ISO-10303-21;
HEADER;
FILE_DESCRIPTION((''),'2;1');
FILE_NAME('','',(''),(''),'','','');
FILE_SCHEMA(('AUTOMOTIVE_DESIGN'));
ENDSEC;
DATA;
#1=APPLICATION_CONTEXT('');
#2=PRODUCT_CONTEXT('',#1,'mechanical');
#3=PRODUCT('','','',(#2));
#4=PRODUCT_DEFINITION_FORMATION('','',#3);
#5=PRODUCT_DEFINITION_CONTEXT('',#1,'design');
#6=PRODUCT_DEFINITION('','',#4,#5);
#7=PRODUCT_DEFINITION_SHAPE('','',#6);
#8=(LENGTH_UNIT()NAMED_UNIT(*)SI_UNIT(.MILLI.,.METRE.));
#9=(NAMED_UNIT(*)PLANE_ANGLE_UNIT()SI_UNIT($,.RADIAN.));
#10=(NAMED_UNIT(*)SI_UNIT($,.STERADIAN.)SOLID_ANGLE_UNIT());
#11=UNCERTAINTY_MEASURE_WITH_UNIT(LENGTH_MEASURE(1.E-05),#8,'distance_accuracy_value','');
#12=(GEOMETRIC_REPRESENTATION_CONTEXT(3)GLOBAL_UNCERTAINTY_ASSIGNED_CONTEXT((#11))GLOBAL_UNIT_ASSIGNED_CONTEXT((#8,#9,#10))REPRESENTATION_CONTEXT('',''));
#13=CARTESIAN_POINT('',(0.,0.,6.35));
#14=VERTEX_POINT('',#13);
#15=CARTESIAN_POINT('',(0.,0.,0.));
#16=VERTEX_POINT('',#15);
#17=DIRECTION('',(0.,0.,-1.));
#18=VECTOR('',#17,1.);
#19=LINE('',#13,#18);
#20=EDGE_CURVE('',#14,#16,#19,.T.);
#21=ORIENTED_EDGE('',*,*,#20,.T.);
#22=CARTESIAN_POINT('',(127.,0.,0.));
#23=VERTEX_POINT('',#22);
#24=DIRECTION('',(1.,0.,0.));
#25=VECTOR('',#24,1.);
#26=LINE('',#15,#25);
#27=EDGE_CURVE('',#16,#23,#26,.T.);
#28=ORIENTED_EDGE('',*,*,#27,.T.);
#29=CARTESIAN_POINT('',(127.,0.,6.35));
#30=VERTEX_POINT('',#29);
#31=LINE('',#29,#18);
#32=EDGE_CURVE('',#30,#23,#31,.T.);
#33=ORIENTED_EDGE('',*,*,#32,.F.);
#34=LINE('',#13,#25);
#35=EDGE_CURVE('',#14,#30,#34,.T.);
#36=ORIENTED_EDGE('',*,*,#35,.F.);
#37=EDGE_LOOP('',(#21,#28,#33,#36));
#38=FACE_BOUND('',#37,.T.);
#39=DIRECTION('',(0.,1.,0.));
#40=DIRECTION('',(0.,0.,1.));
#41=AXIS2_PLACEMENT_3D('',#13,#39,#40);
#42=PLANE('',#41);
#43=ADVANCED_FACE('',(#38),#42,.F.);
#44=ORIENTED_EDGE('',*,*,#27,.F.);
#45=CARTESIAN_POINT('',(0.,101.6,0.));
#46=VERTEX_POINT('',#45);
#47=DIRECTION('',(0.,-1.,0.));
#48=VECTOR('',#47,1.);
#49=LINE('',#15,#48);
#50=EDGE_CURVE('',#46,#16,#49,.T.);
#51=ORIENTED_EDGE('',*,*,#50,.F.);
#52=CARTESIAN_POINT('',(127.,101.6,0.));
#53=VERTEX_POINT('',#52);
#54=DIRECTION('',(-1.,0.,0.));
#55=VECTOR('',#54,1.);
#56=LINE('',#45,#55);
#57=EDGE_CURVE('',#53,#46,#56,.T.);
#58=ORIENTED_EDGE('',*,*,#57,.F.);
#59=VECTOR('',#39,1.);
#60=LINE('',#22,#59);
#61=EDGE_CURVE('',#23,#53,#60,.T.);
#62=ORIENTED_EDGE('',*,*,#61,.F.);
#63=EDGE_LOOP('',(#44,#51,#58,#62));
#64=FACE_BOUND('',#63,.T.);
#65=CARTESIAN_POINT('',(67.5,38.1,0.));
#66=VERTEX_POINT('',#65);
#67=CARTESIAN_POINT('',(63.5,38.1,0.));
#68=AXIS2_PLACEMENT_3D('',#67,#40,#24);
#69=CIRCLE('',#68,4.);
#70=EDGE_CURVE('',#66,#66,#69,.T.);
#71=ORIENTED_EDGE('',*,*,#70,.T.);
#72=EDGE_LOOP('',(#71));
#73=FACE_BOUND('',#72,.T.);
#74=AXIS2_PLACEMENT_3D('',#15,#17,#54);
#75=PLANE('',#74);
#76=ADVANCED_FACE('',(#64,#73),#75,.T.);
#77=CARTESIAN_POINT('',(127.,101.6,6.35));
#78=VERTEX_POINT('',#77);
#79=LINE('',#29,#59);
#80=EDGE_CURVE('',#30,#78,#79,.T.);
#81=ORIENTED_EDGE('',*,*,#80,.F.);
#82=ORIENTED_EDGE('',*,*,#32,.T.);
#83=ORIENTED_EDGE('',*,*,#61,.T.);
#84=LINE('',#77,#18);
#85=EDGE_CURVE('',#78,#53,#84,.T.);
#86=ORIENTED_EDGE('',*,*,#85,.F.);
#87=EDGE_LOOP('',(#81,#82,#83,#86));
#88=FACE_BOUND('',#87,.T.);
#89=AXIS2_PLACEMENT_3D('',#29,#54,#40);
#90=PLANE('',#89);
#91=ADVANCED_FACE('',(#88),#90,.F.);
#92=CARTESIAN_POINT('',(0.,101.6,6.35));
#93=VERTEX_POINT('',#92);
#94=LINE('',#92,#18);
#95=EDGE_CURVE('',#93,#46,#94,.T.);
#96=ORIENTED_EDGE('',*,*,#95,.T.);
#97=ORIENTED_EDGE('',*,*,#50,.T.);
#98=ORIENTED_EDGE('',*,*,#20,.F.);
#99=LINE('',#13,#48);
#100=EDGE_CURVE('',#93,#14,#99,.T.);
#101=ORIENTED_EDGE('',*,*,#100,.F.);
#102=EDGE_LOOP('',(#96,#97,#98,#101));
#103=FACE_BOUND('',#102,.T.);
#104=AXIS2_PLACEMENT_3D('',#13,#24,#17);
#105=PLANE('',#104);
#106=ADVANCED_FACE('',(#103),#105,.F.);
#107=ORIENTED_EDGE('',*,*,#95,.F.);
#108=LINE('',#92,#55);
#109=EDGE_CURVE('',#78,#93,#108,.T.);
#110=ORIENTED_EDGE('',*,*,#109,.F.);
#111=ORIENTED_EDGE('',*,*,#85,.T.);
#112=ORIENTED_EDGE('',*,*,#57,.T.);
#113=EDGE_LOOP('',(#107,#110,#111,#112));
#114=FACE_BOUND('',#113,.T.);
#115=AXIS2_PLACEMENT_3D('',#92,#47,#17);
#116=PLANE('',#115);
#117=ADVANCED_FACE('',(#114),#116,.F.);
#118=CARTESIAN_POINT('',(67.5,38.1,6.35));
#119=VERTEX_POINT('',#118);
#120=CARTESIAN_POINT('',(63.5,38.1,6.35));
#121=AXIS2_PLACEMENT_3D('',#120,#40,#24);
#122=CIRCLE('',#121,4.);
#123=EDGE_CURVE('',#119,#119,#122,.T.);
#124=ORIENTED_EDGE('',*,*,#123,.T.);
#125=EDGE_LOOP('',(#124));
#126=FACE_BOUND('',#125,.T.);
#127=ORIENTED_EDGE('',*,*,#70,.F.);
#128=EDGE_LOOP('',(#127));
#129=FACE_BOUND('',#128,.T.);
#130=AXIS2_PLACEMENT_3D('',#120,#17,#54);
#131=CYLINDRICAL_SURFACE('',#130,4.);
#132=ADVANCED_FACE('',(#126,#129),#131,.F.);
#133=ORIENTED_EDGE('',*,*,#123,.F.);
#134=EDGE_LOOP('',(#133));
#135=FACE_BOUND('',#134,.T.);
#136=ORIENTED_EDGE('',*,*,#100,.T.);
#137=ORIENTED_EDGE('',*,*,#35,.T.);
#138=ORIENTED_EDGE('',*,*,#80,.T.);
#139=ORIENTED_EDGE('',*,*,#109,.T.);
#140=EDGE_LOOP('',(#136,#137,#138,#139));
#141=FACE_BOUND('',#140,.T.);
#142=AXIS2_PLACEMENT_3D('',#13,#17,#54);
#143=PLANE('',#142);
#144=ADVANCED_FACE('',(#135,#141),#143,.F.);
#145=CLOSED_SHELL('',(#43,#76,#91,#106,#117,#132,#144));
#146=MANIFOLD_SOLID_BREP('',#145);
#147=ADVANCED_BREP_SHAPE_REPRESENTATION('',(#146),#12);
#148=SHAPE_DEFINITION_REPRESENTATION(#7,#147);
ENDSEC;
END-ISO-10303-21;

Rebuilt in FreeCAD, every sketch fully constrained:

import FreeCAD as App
import Part
import Sketcher
Q = App.Units.Quantity


def add_polygon(sketch, points):
    """Adds a closed chain of lines whose ends are joined by coincident constraints."""
    first, n = sketch.GeometryCount, len(points)
    for a, b in zip(points, points[1:] + points[:1]):
        sketch.addGeometry(Part.LineSegment(App.Vector(*a, 0), App.Vector(*b, 0)), False)
    for i in range(n):
        sketch.addConstraint(Sketcher.Constraint("Coincident", first + i, 2, first + (i + 1) % n, 1))

doc = App.newDocument("Part")
body = doc.addObject("PartDesign::Body", "Body")

sketch1 = body.newObject("Sketcher::SketchObject", "Sketch")
sketch1.AttachmentSupport = (doc.getObject("XY_Plane"), [""])
sketch1.MapMode = "FlatFace"
add_polygon(sketch1, [(0, 101.6), (0, 0), (127, 0), (127, 101.6)])
sketch1.addGeometry(Part.Circle(App.Vector(63.5, 38.1, 0), App.Vector(0, 0, 1), 4), False)
sketch1.addConstraint(Sketcher.Constraint("Vertical", 0))
sketch1.addConstraint(Sketcher.Constraint("Horizontal", 1))
sketch1.addConstraint(Sketcher.Constraint("Vertical", 2))
sketch1.addConstraint(Sketcher.Constraint("Horizontal", 3))
sketch1.addConstraint(Sketcher.Constraint("Coincident", 0, 2, -1, 1))
sketch1.addConstraint(Sketcher.Constraint("DistanceX", 1, 1, 1, 2, Q("5 in")))
sketch1.addConstraint(Sketcher.Constraint("DistanceY", 0, 2, 0, 1, Q("4 in")))
sketch1.addConstraint(Sketcher.Constraint("DistanceX", -1, 1, 4, 3, Q("2.5 in")))
sketch1.addConstraint(Sketcher.Constraint("DistanceY", -1, 1, 4, 3, Q("1.5 in")))
sketch1.addConstraint(Sketcher.Constraint("Diameter", 4, Q("8 mm")))
pad1 = body.newObject("PartDesign::Pad", "Pad")
pad1.Profile = sketch1
pad1.Length = Q("0.25 in")

doc.recompute()
